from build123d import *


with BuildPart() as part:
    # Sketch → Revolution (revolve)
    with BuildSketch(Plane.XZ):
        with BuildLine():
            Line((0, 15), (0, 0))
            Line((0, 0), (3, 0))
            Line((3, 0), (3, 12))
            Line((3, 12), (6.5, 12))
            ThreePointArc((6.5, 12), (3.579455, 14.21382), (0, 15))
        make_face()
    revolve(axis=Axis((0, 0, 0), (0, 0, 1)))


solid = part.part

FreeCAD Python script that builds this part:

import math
import FreeCAD as App
import Part
import Sketcher

doc = App.newDocument("Part")
body = doc.addObject("PartDesign::Body", "Body")

# Sketch on XZ plane
sketch1 = body.newObject("Sketcher::SketchObject", "Sketch")
sketch1.AttachmentSupport = (doc.getObject("XZ_Plane"), [""])
sketch1.MapMode = "FlatFace"
sketch1.addGeometry([
    Part.LineSegment(App.Vector(0, 15, 0), App.Vector(0, 0, 0)),  # 0
    Part.LineSegment(App.Vector(0, 0, 0), App.Vector(3, 0, 0)),  # 1
    Part.LineSegment(App.Vector(3, 0, 0), App.Vector(3, 12, 0)),  # 2
    Part.LineSegment(App.Vector(3, 12, 0), App.Vector(6.5, 12, 0)),  # 3
    Part.ArcOfCircle(Part.Circle(App.Vector(0.000001, 6.458335, 0), App.Vector(0, 0, 1), 8.541665), math.radians(40.449715), math.radians(90.000004)),  # 4
], False)
sketch1.addConstraint([
    Sketcher.Constraint("Coincident", 0, 2, 1, 1),
    Sketcher.Constraint("Coincident", 1, 2, 2, 1),
    Sketcher.Constraint("Coincident", 2, 2, 3, 1),
    Sketcher.Constraint("Coincident", 3, 2, 4, 1),
    Sketcher.Constraint("Coincident", 4, 2, 0, 1),
    Sketcher.Constraint("Vertical", 0),
    Sketcher.Constraint("Horizontal", 1),
    Sketcher.Constraint("Vertical", 2),
    Sketcher.Constraint("Horizontal", 3),
    Sketcher.Constraint("Coincident", 0, 2, -1, 1),
    Sketcher.Constraint("PointOnObject", 4, 3, -2),
    Sketcher.Constraint("DistanceX", 1, 1, 1, 2, 3.0),
    Sketcher.Constraint("DistanceY", 0, 2, 0, 1, 15.0),
    Sketcher.Constraint("DistanceY", 2, 1, 2, 2, 12.0),
    Sketcher.Constraint("DistanceX", 3, 1, 3, 2, 3.5),
])
revolution = body.newObject("PartDesign::Revolution", "Revolution")
revolution.Profile = sketch1
revolution.ReferenceAxis = (sketch1, ["V_Axis"])
revolution.Angle = 360

doc.recompute()
